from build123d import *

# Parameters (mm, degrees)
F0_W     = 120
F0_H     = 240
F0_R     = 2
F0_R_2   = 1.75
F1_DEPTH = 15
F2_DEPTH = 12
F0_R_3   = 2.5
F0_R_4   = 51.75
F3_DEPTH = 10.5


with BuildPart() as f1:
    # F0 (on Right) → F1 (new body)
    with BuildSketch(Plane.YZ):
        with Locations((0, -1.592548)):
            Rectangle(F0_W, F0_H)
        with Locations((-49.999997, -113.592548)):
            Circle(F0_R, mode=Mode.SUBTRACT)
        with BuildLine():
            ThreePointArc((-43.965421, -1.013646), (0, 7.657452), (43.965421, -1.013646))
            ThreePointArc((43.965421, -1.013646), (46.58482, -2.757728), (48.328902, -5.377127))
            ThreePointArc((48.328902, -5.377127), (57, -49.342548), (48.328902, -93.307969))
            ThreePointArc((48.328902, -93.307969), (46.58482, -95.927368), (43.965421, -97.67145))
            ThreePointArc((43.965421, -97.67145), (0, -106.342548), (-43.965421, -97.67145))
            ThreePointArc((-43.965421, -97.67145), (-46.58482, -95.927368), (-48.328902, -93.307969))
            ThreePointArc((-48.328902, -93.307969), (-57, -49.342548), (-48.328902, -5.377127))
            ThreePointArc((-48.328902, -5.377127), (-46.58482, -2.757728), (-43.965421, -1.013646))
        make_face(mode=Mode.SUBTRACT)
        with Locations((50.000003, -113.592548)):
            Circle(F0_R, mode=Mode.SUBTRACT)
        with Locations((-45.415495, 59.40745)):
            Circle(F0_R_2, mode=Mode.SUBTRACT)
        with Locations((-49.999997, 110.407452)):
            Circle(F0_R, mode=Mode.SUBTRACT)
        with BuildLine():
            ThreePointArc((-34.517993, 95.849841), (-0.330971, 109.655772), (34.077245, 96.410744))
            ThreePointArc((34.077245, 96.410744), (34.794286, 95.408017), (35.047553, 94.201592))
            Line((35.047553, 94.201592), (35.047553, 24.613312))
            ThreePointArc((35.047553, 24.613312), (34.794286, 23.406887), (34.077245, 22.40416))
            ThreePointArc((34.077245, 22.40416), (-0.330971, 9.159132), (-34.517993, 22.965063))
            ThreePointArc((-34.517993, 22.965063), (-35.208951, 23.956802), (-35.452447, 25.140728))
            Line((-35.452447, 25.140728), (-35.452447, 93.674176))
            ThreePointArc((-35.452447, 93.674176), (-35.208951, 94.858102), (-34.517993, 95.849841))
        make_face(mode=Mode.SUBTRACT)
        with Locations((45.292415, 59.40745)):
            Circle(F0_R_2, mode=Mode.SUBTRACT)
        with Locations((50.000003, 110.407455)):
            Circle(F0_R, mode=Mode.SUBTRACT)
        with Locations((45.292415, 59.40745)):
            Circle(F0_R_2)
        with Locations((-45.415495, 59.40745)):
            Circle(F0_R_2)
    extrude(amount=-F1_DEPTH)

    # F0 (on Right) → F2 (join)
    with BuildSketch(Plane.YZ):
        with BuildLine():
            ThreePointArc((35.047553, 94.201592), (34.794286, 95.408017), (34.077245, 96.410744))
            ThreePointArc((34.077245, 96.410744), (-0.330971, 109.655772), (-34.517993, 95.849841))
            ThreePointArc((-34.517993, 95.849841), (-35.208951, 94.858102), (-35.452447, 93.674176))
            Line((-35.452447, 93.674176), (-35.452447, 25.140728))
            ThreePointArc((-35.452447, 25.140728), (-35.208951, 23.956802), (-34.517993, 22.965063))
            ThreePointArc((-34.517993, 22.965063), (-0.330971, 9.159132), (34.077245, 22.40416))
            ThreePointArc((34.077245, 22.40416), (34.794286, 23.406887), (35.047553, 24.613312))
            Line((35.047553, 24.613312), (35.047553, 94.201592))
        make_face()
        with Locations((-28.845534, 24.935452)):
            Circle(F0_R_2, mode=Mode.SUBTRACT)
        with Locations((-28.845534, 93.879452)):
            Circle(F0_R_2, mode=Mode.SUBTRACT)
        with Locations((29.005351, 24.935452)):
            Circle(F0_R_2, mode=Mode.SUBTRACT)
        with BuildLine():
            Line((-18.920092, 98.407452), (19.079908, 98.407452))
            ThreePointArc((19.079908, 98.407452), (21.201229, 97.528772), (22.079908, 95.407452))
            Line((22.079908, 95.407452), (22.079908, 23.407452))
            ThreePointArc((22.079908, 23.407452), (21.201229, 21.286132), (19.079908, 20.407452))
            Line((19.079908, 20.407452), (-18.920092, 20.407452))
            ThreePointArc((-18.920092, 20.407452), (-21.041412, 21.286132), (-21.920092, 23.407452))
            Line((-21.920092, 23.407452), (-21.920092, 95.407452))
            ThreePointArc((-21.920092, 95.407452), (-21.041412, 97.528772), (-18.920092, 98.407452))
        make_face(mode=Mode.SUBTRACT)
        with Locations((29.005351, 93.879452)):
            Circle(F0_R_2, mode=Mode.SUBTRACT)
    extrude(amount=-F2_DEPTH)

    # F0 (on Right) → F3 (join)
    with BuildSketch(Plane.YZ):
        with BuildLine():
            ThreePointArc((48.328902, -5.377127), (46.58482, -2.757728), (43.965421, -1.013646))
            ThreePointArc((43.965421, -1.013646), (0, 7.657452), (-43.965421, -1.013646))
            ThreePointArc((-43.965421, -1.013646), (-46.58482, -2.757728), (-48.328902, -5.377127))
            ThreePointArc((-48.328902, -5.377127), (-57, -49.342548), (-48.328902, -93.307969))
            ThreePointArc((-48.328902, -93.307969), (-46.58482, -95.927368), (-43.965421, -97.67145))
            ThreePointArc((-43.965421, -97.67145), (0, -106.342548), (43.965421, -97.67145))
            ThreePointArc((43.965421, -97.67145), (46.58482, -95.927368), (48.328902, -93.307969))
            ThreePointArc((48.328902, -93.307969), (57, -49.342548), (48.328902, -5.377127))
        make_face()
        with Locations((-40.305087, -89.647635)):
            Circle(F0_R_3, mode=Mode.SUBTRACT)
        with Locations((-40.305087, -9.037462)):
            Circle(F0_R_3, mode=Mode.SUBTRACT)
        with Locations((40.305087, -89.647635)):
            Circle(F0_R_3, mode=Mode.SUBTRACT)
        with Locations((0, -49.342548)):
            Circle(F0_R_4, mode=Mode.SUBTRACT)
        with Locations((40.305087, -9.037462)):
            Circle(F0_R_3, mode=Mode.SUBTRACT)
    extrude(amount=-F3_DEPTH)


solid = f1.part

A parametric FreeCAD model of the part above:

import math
import FreeCAD as App
import Part
import Sketcher

V = App.Vector

doc = App.newDocument("Part")
body = doc.addObject("PartDesign::Body", "Body")

# Sketch on YZ plane
sketch1 = doc.addObject("Sketcher::SketchObject", "Sketch")
body.addObject(sketch1)
sketch1.AttachmentSupport = (doc.YZ_Plane, [""])
sketch1.MapMode = "FlatFace"
sketch1.addGeometry([
    Part.LineSegment(V(-60, 118.4, 0), V(-60, -121.6, 0)),  # 0
    Part.LineSegment(V(-60, -121.6, 0), V(60, -121.6, 0)),  # 1
    Part.LineSegment(V(60, -121.6, 0), V(60, 118.4, 0)),  # 2
    Part.LineSegment(V(60, 118.4, 0), V(-60, 118.4, 0)),  # 3
    Part.Circle(V(-50, -113.6, 0), V(0, 0, 1), 2),  # 4
    Part.Circle(V(50, -113.6, 0), V(0, 0, 1), 2),  # 5
    Part.ArcOfCircle(Part.Circle(V(-40.9, -8.4, 0), V(0, 0, 1), 8), math.radians(112), math.radians(158)),  # 6
    Part.ArcOfCircle(Part.Circle(V(0, -108.1, 0), V(0, 0, 1), 115.8), math.radians(68), math.radians(112)),  # 7
    Part.ArcOfCircle(Part.Circle(V(40.9, -8.4, 0), V(0, 0, 1), 8), math.radians(22), math.radians(68)),  # 8
    Part.ArcOfCircle(Part.Circle(V(-58.8, -49.3, 0), V(0, 0, 1), 115.8), math.radians(-22), math.radians(22)),  # 9
    Part.ArcOfCircle(Part.Circle(V(40.9, -90.3, 0), V(0, 0, 1), 8), math.radians(-68), math.radians(-22)),  # 10
    Part.ArcOfCircle(Part.Circle(V(0, 9.5, 0), V(0, 0, 1), 115.8), math.radians(-112), math.radians(-68)),  # 11
    Part.ArcOfCircle(Part.Circle(V(-40.9, -90.3, 0), V(0, 0, 1), 8), math.radians(-158), math.radians(-112)),  # 12
    Part.ArcOfCircle(Part.Circle(V(58.8, -49.3, 0), V(0, 0, 1), 115.8), math.radians(158), math.radians(202)),  # 13
    Part.Circle(V(-50, 110.4, 0), V(0, 0, 1), 2),  # 14
    Part.ArcOfCircle(Part.Circle(V(-32.5, 93.7, 0), V(0, 0, 1), 3), math.radians(134), math.radians(180)),  # 15
    Part.ArcOfCircle(Part.Circle(V(0.1, 59.4, 0), V(0, 0, 1), 50.3), math.radians(47), math.radians(134)),  # 16
    Part.ArcOfCircle(Part.Circle(V(32, 94.2, 0), V(0, 0, 1), 3), math.radians(0), math.radians(47)),  # 17
    Part.LineSegment(V(35, 94.2, 0), V(35, 24.6, 0)),  # 18
    Part.ArcOfCircle(Part.Circle(V(32, 24.6, 0), V(0, 0, 1), 3), math.radians(-47), math.radians(0)),  # 19
    Part.ArcOfCircle(Part.Circle(V(0.1, 59.4, 0), V(0, 0, 1), 50.3), math.radians(-134), math.radians(-47)),  # 20
    Part.ArcOfCircle(Part.Circle(V(-32.5, 25.1, 0), V(0, 0, 1), 3), math.radians(-180), math.radians(-134)),  # 21
    Part.LineSegment(V(-35.5, 25.1, 0), V(-35.5, 93.7, 0)),  # 22
    Part.Circle(V(50, 110.4, 0), V(0, 0, 1), 2),  # 23
], False)
sketch1.addConstraint([
    Sketcher.Constraint("Coincident", 0, 2, 1, 1),
    Sketcher.Constraint("Coincident", 1, 2, 2, 1),
    Sketcher.Constraint("Coincident", 2, 2, 3, 1),
    Sketcher.Constraint("Coincident", 3, 2, 0, 1),
    Sketcher.Constraint("Tangent", 6, 1, 7, 2),
    Sketcher.Constraint("Tangent", 7, 1, 8, 2),
    Sketcher.Constraint("Tangent", 8, 1, 9, 2),
    Sketcher.Constraint("Tangent", 9, 1, 10, 2),
    Sketcher.Constraint("Tangent", 10, 1, 11, 2),
    Sketcher.Constraint("Tangent", 11, 1, 12, 2),
    Sketcher.Constraint("Tangent", 12, 1, 13, 2),
    Sketcher.Constraint("Tangent", 13, 1, 6, 2),
    Sketcher.Constraint("Tangent", 15, 1, 16, 2),
    Sketcher.Constraint("Tangent", 16, 1, 17, 2),
    Sketcher.Constraint("Tangent", 17, 1, 18, 1),
    Sketcher.Constraint("Tangent", 18, 2, 19, 2),
    Sketcher.Constraint("Tangent", 19, 1, 20, 2),
    Sketcher.Constraint("Tangent", 20, 1, 21, 2),
    Sketcher.Constraint("Tangent", 21, 1, 22, 1),
    Sketcher.Constraint("Tangent", 22, 2, 15, 2),
    Sketcher.Constraint("Vertical", 0),
    Sketcher.Constraint("Horizontal", 1),
    Sketcher.Constraint("Vertical", 2),
    Sketcher.Constraint("Horizontal", 3),
    Sketcher.Constraint("Vertical", 18),
    Sketcher.Constraint("Vertical", 22),
    Sketcher.Constraint("Coincident", 20, 3, 16, 3),
    Sketcher.Constraint("Equal", 4, 5),
    Sketcher.Constraint("Equal", 6, 8),
    Sketcher.Constraint("Equal", 7, 9),
    Sketcher.Constraint("Equal", 8, 10),
    Sketcher.Constraint("Equal", 9, 11),
    Sketcher.Constraint("Equal", 10, 12),
    Sketcher.Constraint("Equal", 11, 13),
    Sketcher.Constraint("Equal", 5, 14),
    Sketcher.Constraint("Equal", 17, 19),
    Sketcher.Constraint("Equal", 16, 20),
    Sketcher.Constraint("Equal", 15, 21),
    Sketcher.Constraint("Equal", 14, 23),
    Sketcher.Constraint("Symmetric", 4, 3, 5, 3, -2),
    Sketcher.Constraint("Symmetric", 6, 3, 8, 3, -2),
    Sketcher.Constraint("Symmetric", 10, 3, 12, 3, -2),
    Sketcher.Constraint("Symmetric", 14, 3, 23, 3, -2),
    Sketcher.Constraint("Vertical", 8, 3, 10, 3),
    Sketcher.Constraint("Vertical", 4, 3, 14, 3),
    Sketcher.Constraint("Diameter", 4, 4.0),
    Sketcher.Constraint("DistanceX", 1, 1, 1, 2, 120.0),
    Sketcher.Constraint("DistanceY", 0, 2, 0, 1, 240.0),
    Sketcher.Constraint("Radius", 16, 50.250001),
    Sketcher.Constraint("DistanceX", 0, 2, -1, 1, 60.0),
    Sketcher.Constraint("DistanceX", 4, 3, 5, 3, 100.0),
    Sketcher.Constraint("DistanceY", 16, 3, 14, 3, 51.000001),
    Sketcher.Constraint("DistanceY", 0, 2, 4, 3, 8.0),
    Sketcher.Constraint("DistanceY", 20, 3, 2, 2, 58.999999),
    Sketcher.Constraint("Radius", 7, 115.79538),
    Sketcher.Constraint("DistanceY", 4, 3, 9, 3, 64.25),
    Sketcher.Constraint("Radius", 6, 7.999993),
    Sketcher.Constraint("Radius", 15, 3.000008),
    Sketcher.Constraint("Radius", 17, 2.999996),
    Sketcher.Constraint("DistanceY", 18, 2, 18, 1, 69.58828),
    Sketcher.Constraint("DistanceY", 22, 1, 22, 2, 68.533448),
    Sketcher.Constraint("DistanceX", -1, 1, 8, 1, 48.328902),
    Sketcher.Constraint("DistanceY", 11, 3, 21, 3, 15.687899),
    Sketcher.Constraint("DistanceY", 7, 3, -1, 1, 108.137928),
    Sketcher.Constraint("DistanceX", 15, 3, -1, 1, 32.452439),
])
pad1 = doc.addObject("PartDesign::Pad", "Pad")
body.addObject(pad1)
pad1.Profile = sketch1
pad1.Length = 15
pad1.Reversed = True

# Sketch on YZ plane
sketch2 = doc.addObject("Sketcher::SketchObject", "Sketch001")
body.addObject(sketch2)
sketch2.AttachmentSupport = (doc.YZ_Plane, [""])
sketch2.MapMode = "FlatFace"
sketch2.addGeometry([
    Part.ArcOfCircle(Part.Circle(V(32, 94.2, 0), V(0, 0, 1), 3), math.radians(0), math.radians(47)),  # 0
    Part.ArcOfCircle(Part.Circle(V(0.1, 59.4, 0), V(0, 0, 1), 50.3), math.radians(47), math.radians(134)),  # 1
    Part.ArcOfCircle(Part.Circle(V(-32.5, 93.7, 0), V(0, 0, 1), 3), math.radians(134), math.radians(180)),  # 2
    Part.LineSegment(V(-35.5, 93.7, 0), V(-35.5, 25.1, 0)),  # 3
    Part.ArcOfCircle(Part.Circle(V(-32.5, 25.1, 0), V(0, 0, 1), 3), math.radians(-180), math.radians(-134)),  # 4
    Part.ArcOfCircle(Part.Circle(V(0.1, 59.4, 0), V(0, 0, 1), 50.3), math.radians(-134), math.radians(-47)),  # 5
    Part.ArcOfCircle(Part.Circle(V(32, 24.6, 0), V(0, 0, 1), 3), math.radians(-47), math.radians(0)),  # 6
    Part.LineSegment(V(35, 24.6, 0), V(35, 94.2, 0)),  # 7
    Part.Circle(V(-28.8, 24.9, 0), V(0, 0, 1), 1.8),  # 8
    Part.ArcOfCircle(Part.Circle(V(-18.9, 95.4, 0), V(0, 0, 1), 3), math.radians(90), math.radians(180)),  # 9
    Part.LineSegment(V(-18.9, 98.4, 0), V(19.1, 98.4, 0)),  # 10
    Part.ArcOfCircle(Part.Circle(V(19.1, 95.4, 0), V(0, 0, 1), 3), math.radians(0), math.radians(90)),  # 11
    Part.LineSegment(V(22.1, 95.4, 0), V(22.1, 23.4, 0)),  # 12
    Part.ArcOfCircle(Part.Circle(V(19.1, 23.4, 0), V(0, 0, 1), 3), math.radians(-90), math.radians(0)),  # 13
    Part.LineSegment(V(19.1, 20.4, 0), V(-18.9, 20.4, 0)),  # 14
    Part.ArcOfCircle(Part.Circle(V(-18.9, 23.4, 0), V(0, 0, 1), 3), math.radians(-180), math.radians(-90)),  # 15
    Part.LineSegment(V(-21.9, 23.4, 0), V(-21.9, 95.4, 0)),  # 16
    Part.Circle(V(29, 24.9, 0), V(0, 0, 1), 1.8),  # 17
    Part.Circle(V(-28.8, 93.9, 0), V(0, 0, 1), 1.8),  # 18
    Part.Circle(V(29, 93.9, 0), V(0, 0, 1), 1.8),  # 19
], False)
sketch2.addConstraint([
    Sketcher.Constraint("Tangent", 0, 2, 1, 1),
    Sketcher.Constraint("Tangent", 1, 2, 2, 1),
    Sketcher.Constraint("Tangent", 2, 2, 3, 1),
    Sketcher.Constraint("Tangent", 3, 2, 4, 1),
    Sketcher.Constraint("Tangent", 4, 2, 5, 1),
    Sketcher.Constraint("Tangent", 5, 2, 6, 1),
    Sketcher.Constraint("Tangent", 6, 2, 7, 1),
    Sketcher.Constraint("Tangent", 7, 2, 0, 1),
    Sketcher.Constraint("Tangent", 9, 1, 10, 1),
    Sketcher.Constraint("Tangent", 10, 2, 11, 2),
    Sketcher.Constraint("Tangent", 11, 1, 12, 1),
    Sketcher.Constraint("Tangent", 12, 2, 13, 2),
    Sketcher.Constraint("Tangent", 13, 1, 14, 1),
    Sketcher.Constraint("Tangent", 14, 2, 15, 2),
    Sketcher.Constraint("Tangent", 15, 1, 16, 1),
    Sketcher.Constraint("Tangent", 16, 2, 9, 2),
    Sketcher.Constraint("Vertical", 3),
    Sketcher.Constraint("Vertical", 7),
    Sketcher.Constraint("Horizontal", 10),
    Sketcher.Constraint("Vertical", 12),
    Sketcher.Constraint("Horizontal", 14),
    Sketcher.Constraint("Vertical", 16),
    Sketcher.Constraint("Coincident", 5, 3, 1, 3),
    Sketcher.Constraint("Equal", 2, 4),
    Sketcher.Constraint("Equal", 1, 5),
    Sketcher.Constraint("Equal", 0, 6),
    Sketcher.Constraint("Equal", 9, 11),
    Sketcher.Constraint("Equal", 11, 13),
    Sketcher.Constraint("Equal", 13, 15),
    Sketcher.Constraint("Equal", 8, 17),
    Sketcher.Constraint("Equal", 17, 18),
    Sketcher.Constraint("Equal", 18, 19),
    Sketcher.Constraint("Horizontal", 8, 3, 17, 3),
    Sketcher.Constraint("Horizontal", 18, 3, 19, 3),
    Sketcher.Constraint("Vertical", 8, 3, 18, 3),
    Sketcher.Constraint("Vertical", 17, 3, 19, 3),
    Sketcher.Constraint("Radius", 9, 3.000001),
    Sketcher.Constraint("Diameter", 8, 3.5),
    Sketcher.Constraint("DistanceX", 10, 1, 10, 2, 38.0),
    Sketcher.Constraint("DistanceY", 12, 2, 12, 1, 72.0),
    Sketcher.Constraint("Radius", 1, 50.250001),
    Sketcher.Constraint("DistanceX", 9, 3, 5, 3, 18.999999),
    Sketcher.Constraint("DistanceY", 5, 3, 9, 3, 35.999998),
    Sketcher.Constraint("Radius", 0, 2.999996),
    Sketcher.Constraint("Radius", 2, 3.000008),
    Sketcher.Constraint("DistanceY", 8, 3, 1, 3, 34.471999),
    Sketcher.Constraint("DistanceY", 18, 3, 9, 3, 1.527999),
    Sketcher.Constraint("DistanceY", 3, 2, 3, 1, 68.533448),
    Sketcher.Constraint("DistanceY", 7, 1, 7, 2, 69.58828),
    Sketcher.Constraint("DistanceX", 17, 3, 6, 2, 6.042202),
    Sketcher.Constraint("DistanceX", -1, 1, 1, 3, 0.079909),
    Sketcher.Constraint("DistanceY", -1, 1, 1, 3, 59.407451),
    Sketcher.Constraint("DistanceX", 8, 3, 6, 3, 60.893091),
])
pad2 = doc.addObject("PartDesign::Pad", "Pad001")
body.addObject(pad2)
pad2.Profile = sketch2
pad2.Length = 12
pad2.Reversed = True

# Sketch on YZ plane
sketch3 = doc.addObject("Sketcher::SketchObject", "Sketch002")
body.addObject(sketch3)
sketch3.AttachmentSupport = (doc.YZ_Plane, [""])
sketch3.MapMode = "FlatFace"
sketch3.addGeometry([
    Part.ArcOfCircle(Part.Circle(V(40.9, -8.4, 0), V(0, 0, 1), 8), math.radians(22), math.radians(68)),  # 0
    Part.ArcOfCircle(Part.Circle(V(0, -108.1, 0), V(0, 0, 1), 115.8), math.radians(68), math.radians(112)),  # 1
    Part.ArcOfCircle(Part.Circle(V(-40.9, -8.4, 0), V(0, 0, 1), 8), math.radians(112), math.radians(158)),  # 2
    Part.ArcOfCircle(Part.Circle(V(58.8, -49.3, 0), V(0, 0, 1), 115.8), math.radians(158), math.radians(202)),  # 3
    Part.ArcOfCircle(Part.Circle(V(-40.9, -90.3, 0), V(0, 0, 1), 8), math.radians(-158), math.radians(-112)),  # 4
    Part.ArcOfCircle(Part.Circle(V(0, 9.5, 0), V(0, 0, 1), 115.8), math.radians(-112), math.radians(-68)),  # 5
    Part.ArcOfCircle(Part.Circle(V(40.9, -90.3, 0), V(0, 0, 1), 8), math.radians(-68), math.radians(-22)),  # 6
    Part.ArcOfCircle(Part.Circle(V(-58.8, -49.3, 0), V(0, 0, 1), 115.8), math.radians(-22), math.radians(22)),  # 7
    Part.Circle(V(-40.3, -89.6, 0), V(0, 0, 1), 2.5),  # 8
    Part.Circle(V(40.3, -89.6, 0), V(0, 0, 1), 2.5),  # 9
    Part.Circle(V(-40.3, -9, 0), V(0, 0, 1), 2.5),  # 10
    Part.Circle(V(0, -49.3, 0), V(0, 0, 1), 51.8),  # 11
    Part.Circle(V(40.3, -9, 0), V(0, 0, 1), 2.5),  # 12
], False)
sketch3.addConstraint([
    Sketcher.Constraint("Tangent", 0, 2, 1, 1),
    Sketcher.Constraint("Tangent", 1, 2, 2, 1),
    Sketcher.Constraint("Tangent", 2, 2, 3, 1),
    Sketcher.Constraint("Tangent", 3, 2, 4, 1),
    Sketcher.Constraint("Tangent", 4, 2, 5, 1),
    Sketcher.Constraint("Tangent", 5, 2, 6, 1),
    Sketcher.Constraint("Tangent", 6, 2, 7, 1),
    Sketcher.Constraint("Tangent", 7, 2, 0, 1),
    Sketcher.Constraint("Equal", 0, 2),
    Sketcher.Constraint("Equal", 1, 3),
    Sketcher.Constraint("Equal", 2, 4),
    Sketcher.Constraint("Equal", 3, 5),
    Sketcher.Constraint("Equal", 4, 6),
    Sketcher.Constraint("Equal", 5, 7),
    Sketcher.Constraint("Equal", 8, 9),
    Sketcher.Constraint("Equal", 9, 10),
    Sketcher.Constraint("Equal", 10, 12),
    Sketcher.Constraint("Symmetric", 0, 3, 2, 3, -2),
    Sketcher.Constraint("Symmetric", 4, 3, 6, 3, -2),
    Sketcher.Constraint("Symmetric", 8, 3, 9, 3, -2),
    Sketcher.Constraint("Symmetric", 10, 3, 12, 3, -2),
    Sketcher.Constraint("PointOnObject", 11, 3, -2),
    Sketcher.Constraint("Horizontal", 7, 3, 11, 3),
    Sketcher.Constraint("Vertical", 2, 3, 4, 3),
    Sketcher.Constraint("Vertical", 8, 3, 10, 3),
    Sketcher.Constraint("Diameter", 8, 5.0),
    Sketcher.Constraint("Diameter", 11, 103.5),
    Sketcher.Constraint("Radius", 1, 115.79538),
    Sketcher.Constraint("Radius", 0, 7.999993),
    Sketcher.Constraint("DistanceX", 2, 2, -1, 1, 48.328902),
    Sketcher.Constraint("DistanceY", 3, 3, 0, 2, 48.328902),
    Sketcher.Constraint("DistanceY", 1, 3, -1, 1, 108.137928),
    Sketcher.Constraint("DistanceX", 8, 3, -1, 1, 40.305087),
    Sketcher.Constraint("DistanceY", 8, 3, -1, 1, 89.647635),
    Sketcher.Constraint("DistanceY", 10, 3, -1, 1, 9.037462),
])
pad3 = doc.addObject("PartDesign::Pad", "Pad002")
body.addObject(pad3)
pad3.Profile = sketch3
pad3.Length = 10.5
pad3.Reversed = True

doc.recompute()
